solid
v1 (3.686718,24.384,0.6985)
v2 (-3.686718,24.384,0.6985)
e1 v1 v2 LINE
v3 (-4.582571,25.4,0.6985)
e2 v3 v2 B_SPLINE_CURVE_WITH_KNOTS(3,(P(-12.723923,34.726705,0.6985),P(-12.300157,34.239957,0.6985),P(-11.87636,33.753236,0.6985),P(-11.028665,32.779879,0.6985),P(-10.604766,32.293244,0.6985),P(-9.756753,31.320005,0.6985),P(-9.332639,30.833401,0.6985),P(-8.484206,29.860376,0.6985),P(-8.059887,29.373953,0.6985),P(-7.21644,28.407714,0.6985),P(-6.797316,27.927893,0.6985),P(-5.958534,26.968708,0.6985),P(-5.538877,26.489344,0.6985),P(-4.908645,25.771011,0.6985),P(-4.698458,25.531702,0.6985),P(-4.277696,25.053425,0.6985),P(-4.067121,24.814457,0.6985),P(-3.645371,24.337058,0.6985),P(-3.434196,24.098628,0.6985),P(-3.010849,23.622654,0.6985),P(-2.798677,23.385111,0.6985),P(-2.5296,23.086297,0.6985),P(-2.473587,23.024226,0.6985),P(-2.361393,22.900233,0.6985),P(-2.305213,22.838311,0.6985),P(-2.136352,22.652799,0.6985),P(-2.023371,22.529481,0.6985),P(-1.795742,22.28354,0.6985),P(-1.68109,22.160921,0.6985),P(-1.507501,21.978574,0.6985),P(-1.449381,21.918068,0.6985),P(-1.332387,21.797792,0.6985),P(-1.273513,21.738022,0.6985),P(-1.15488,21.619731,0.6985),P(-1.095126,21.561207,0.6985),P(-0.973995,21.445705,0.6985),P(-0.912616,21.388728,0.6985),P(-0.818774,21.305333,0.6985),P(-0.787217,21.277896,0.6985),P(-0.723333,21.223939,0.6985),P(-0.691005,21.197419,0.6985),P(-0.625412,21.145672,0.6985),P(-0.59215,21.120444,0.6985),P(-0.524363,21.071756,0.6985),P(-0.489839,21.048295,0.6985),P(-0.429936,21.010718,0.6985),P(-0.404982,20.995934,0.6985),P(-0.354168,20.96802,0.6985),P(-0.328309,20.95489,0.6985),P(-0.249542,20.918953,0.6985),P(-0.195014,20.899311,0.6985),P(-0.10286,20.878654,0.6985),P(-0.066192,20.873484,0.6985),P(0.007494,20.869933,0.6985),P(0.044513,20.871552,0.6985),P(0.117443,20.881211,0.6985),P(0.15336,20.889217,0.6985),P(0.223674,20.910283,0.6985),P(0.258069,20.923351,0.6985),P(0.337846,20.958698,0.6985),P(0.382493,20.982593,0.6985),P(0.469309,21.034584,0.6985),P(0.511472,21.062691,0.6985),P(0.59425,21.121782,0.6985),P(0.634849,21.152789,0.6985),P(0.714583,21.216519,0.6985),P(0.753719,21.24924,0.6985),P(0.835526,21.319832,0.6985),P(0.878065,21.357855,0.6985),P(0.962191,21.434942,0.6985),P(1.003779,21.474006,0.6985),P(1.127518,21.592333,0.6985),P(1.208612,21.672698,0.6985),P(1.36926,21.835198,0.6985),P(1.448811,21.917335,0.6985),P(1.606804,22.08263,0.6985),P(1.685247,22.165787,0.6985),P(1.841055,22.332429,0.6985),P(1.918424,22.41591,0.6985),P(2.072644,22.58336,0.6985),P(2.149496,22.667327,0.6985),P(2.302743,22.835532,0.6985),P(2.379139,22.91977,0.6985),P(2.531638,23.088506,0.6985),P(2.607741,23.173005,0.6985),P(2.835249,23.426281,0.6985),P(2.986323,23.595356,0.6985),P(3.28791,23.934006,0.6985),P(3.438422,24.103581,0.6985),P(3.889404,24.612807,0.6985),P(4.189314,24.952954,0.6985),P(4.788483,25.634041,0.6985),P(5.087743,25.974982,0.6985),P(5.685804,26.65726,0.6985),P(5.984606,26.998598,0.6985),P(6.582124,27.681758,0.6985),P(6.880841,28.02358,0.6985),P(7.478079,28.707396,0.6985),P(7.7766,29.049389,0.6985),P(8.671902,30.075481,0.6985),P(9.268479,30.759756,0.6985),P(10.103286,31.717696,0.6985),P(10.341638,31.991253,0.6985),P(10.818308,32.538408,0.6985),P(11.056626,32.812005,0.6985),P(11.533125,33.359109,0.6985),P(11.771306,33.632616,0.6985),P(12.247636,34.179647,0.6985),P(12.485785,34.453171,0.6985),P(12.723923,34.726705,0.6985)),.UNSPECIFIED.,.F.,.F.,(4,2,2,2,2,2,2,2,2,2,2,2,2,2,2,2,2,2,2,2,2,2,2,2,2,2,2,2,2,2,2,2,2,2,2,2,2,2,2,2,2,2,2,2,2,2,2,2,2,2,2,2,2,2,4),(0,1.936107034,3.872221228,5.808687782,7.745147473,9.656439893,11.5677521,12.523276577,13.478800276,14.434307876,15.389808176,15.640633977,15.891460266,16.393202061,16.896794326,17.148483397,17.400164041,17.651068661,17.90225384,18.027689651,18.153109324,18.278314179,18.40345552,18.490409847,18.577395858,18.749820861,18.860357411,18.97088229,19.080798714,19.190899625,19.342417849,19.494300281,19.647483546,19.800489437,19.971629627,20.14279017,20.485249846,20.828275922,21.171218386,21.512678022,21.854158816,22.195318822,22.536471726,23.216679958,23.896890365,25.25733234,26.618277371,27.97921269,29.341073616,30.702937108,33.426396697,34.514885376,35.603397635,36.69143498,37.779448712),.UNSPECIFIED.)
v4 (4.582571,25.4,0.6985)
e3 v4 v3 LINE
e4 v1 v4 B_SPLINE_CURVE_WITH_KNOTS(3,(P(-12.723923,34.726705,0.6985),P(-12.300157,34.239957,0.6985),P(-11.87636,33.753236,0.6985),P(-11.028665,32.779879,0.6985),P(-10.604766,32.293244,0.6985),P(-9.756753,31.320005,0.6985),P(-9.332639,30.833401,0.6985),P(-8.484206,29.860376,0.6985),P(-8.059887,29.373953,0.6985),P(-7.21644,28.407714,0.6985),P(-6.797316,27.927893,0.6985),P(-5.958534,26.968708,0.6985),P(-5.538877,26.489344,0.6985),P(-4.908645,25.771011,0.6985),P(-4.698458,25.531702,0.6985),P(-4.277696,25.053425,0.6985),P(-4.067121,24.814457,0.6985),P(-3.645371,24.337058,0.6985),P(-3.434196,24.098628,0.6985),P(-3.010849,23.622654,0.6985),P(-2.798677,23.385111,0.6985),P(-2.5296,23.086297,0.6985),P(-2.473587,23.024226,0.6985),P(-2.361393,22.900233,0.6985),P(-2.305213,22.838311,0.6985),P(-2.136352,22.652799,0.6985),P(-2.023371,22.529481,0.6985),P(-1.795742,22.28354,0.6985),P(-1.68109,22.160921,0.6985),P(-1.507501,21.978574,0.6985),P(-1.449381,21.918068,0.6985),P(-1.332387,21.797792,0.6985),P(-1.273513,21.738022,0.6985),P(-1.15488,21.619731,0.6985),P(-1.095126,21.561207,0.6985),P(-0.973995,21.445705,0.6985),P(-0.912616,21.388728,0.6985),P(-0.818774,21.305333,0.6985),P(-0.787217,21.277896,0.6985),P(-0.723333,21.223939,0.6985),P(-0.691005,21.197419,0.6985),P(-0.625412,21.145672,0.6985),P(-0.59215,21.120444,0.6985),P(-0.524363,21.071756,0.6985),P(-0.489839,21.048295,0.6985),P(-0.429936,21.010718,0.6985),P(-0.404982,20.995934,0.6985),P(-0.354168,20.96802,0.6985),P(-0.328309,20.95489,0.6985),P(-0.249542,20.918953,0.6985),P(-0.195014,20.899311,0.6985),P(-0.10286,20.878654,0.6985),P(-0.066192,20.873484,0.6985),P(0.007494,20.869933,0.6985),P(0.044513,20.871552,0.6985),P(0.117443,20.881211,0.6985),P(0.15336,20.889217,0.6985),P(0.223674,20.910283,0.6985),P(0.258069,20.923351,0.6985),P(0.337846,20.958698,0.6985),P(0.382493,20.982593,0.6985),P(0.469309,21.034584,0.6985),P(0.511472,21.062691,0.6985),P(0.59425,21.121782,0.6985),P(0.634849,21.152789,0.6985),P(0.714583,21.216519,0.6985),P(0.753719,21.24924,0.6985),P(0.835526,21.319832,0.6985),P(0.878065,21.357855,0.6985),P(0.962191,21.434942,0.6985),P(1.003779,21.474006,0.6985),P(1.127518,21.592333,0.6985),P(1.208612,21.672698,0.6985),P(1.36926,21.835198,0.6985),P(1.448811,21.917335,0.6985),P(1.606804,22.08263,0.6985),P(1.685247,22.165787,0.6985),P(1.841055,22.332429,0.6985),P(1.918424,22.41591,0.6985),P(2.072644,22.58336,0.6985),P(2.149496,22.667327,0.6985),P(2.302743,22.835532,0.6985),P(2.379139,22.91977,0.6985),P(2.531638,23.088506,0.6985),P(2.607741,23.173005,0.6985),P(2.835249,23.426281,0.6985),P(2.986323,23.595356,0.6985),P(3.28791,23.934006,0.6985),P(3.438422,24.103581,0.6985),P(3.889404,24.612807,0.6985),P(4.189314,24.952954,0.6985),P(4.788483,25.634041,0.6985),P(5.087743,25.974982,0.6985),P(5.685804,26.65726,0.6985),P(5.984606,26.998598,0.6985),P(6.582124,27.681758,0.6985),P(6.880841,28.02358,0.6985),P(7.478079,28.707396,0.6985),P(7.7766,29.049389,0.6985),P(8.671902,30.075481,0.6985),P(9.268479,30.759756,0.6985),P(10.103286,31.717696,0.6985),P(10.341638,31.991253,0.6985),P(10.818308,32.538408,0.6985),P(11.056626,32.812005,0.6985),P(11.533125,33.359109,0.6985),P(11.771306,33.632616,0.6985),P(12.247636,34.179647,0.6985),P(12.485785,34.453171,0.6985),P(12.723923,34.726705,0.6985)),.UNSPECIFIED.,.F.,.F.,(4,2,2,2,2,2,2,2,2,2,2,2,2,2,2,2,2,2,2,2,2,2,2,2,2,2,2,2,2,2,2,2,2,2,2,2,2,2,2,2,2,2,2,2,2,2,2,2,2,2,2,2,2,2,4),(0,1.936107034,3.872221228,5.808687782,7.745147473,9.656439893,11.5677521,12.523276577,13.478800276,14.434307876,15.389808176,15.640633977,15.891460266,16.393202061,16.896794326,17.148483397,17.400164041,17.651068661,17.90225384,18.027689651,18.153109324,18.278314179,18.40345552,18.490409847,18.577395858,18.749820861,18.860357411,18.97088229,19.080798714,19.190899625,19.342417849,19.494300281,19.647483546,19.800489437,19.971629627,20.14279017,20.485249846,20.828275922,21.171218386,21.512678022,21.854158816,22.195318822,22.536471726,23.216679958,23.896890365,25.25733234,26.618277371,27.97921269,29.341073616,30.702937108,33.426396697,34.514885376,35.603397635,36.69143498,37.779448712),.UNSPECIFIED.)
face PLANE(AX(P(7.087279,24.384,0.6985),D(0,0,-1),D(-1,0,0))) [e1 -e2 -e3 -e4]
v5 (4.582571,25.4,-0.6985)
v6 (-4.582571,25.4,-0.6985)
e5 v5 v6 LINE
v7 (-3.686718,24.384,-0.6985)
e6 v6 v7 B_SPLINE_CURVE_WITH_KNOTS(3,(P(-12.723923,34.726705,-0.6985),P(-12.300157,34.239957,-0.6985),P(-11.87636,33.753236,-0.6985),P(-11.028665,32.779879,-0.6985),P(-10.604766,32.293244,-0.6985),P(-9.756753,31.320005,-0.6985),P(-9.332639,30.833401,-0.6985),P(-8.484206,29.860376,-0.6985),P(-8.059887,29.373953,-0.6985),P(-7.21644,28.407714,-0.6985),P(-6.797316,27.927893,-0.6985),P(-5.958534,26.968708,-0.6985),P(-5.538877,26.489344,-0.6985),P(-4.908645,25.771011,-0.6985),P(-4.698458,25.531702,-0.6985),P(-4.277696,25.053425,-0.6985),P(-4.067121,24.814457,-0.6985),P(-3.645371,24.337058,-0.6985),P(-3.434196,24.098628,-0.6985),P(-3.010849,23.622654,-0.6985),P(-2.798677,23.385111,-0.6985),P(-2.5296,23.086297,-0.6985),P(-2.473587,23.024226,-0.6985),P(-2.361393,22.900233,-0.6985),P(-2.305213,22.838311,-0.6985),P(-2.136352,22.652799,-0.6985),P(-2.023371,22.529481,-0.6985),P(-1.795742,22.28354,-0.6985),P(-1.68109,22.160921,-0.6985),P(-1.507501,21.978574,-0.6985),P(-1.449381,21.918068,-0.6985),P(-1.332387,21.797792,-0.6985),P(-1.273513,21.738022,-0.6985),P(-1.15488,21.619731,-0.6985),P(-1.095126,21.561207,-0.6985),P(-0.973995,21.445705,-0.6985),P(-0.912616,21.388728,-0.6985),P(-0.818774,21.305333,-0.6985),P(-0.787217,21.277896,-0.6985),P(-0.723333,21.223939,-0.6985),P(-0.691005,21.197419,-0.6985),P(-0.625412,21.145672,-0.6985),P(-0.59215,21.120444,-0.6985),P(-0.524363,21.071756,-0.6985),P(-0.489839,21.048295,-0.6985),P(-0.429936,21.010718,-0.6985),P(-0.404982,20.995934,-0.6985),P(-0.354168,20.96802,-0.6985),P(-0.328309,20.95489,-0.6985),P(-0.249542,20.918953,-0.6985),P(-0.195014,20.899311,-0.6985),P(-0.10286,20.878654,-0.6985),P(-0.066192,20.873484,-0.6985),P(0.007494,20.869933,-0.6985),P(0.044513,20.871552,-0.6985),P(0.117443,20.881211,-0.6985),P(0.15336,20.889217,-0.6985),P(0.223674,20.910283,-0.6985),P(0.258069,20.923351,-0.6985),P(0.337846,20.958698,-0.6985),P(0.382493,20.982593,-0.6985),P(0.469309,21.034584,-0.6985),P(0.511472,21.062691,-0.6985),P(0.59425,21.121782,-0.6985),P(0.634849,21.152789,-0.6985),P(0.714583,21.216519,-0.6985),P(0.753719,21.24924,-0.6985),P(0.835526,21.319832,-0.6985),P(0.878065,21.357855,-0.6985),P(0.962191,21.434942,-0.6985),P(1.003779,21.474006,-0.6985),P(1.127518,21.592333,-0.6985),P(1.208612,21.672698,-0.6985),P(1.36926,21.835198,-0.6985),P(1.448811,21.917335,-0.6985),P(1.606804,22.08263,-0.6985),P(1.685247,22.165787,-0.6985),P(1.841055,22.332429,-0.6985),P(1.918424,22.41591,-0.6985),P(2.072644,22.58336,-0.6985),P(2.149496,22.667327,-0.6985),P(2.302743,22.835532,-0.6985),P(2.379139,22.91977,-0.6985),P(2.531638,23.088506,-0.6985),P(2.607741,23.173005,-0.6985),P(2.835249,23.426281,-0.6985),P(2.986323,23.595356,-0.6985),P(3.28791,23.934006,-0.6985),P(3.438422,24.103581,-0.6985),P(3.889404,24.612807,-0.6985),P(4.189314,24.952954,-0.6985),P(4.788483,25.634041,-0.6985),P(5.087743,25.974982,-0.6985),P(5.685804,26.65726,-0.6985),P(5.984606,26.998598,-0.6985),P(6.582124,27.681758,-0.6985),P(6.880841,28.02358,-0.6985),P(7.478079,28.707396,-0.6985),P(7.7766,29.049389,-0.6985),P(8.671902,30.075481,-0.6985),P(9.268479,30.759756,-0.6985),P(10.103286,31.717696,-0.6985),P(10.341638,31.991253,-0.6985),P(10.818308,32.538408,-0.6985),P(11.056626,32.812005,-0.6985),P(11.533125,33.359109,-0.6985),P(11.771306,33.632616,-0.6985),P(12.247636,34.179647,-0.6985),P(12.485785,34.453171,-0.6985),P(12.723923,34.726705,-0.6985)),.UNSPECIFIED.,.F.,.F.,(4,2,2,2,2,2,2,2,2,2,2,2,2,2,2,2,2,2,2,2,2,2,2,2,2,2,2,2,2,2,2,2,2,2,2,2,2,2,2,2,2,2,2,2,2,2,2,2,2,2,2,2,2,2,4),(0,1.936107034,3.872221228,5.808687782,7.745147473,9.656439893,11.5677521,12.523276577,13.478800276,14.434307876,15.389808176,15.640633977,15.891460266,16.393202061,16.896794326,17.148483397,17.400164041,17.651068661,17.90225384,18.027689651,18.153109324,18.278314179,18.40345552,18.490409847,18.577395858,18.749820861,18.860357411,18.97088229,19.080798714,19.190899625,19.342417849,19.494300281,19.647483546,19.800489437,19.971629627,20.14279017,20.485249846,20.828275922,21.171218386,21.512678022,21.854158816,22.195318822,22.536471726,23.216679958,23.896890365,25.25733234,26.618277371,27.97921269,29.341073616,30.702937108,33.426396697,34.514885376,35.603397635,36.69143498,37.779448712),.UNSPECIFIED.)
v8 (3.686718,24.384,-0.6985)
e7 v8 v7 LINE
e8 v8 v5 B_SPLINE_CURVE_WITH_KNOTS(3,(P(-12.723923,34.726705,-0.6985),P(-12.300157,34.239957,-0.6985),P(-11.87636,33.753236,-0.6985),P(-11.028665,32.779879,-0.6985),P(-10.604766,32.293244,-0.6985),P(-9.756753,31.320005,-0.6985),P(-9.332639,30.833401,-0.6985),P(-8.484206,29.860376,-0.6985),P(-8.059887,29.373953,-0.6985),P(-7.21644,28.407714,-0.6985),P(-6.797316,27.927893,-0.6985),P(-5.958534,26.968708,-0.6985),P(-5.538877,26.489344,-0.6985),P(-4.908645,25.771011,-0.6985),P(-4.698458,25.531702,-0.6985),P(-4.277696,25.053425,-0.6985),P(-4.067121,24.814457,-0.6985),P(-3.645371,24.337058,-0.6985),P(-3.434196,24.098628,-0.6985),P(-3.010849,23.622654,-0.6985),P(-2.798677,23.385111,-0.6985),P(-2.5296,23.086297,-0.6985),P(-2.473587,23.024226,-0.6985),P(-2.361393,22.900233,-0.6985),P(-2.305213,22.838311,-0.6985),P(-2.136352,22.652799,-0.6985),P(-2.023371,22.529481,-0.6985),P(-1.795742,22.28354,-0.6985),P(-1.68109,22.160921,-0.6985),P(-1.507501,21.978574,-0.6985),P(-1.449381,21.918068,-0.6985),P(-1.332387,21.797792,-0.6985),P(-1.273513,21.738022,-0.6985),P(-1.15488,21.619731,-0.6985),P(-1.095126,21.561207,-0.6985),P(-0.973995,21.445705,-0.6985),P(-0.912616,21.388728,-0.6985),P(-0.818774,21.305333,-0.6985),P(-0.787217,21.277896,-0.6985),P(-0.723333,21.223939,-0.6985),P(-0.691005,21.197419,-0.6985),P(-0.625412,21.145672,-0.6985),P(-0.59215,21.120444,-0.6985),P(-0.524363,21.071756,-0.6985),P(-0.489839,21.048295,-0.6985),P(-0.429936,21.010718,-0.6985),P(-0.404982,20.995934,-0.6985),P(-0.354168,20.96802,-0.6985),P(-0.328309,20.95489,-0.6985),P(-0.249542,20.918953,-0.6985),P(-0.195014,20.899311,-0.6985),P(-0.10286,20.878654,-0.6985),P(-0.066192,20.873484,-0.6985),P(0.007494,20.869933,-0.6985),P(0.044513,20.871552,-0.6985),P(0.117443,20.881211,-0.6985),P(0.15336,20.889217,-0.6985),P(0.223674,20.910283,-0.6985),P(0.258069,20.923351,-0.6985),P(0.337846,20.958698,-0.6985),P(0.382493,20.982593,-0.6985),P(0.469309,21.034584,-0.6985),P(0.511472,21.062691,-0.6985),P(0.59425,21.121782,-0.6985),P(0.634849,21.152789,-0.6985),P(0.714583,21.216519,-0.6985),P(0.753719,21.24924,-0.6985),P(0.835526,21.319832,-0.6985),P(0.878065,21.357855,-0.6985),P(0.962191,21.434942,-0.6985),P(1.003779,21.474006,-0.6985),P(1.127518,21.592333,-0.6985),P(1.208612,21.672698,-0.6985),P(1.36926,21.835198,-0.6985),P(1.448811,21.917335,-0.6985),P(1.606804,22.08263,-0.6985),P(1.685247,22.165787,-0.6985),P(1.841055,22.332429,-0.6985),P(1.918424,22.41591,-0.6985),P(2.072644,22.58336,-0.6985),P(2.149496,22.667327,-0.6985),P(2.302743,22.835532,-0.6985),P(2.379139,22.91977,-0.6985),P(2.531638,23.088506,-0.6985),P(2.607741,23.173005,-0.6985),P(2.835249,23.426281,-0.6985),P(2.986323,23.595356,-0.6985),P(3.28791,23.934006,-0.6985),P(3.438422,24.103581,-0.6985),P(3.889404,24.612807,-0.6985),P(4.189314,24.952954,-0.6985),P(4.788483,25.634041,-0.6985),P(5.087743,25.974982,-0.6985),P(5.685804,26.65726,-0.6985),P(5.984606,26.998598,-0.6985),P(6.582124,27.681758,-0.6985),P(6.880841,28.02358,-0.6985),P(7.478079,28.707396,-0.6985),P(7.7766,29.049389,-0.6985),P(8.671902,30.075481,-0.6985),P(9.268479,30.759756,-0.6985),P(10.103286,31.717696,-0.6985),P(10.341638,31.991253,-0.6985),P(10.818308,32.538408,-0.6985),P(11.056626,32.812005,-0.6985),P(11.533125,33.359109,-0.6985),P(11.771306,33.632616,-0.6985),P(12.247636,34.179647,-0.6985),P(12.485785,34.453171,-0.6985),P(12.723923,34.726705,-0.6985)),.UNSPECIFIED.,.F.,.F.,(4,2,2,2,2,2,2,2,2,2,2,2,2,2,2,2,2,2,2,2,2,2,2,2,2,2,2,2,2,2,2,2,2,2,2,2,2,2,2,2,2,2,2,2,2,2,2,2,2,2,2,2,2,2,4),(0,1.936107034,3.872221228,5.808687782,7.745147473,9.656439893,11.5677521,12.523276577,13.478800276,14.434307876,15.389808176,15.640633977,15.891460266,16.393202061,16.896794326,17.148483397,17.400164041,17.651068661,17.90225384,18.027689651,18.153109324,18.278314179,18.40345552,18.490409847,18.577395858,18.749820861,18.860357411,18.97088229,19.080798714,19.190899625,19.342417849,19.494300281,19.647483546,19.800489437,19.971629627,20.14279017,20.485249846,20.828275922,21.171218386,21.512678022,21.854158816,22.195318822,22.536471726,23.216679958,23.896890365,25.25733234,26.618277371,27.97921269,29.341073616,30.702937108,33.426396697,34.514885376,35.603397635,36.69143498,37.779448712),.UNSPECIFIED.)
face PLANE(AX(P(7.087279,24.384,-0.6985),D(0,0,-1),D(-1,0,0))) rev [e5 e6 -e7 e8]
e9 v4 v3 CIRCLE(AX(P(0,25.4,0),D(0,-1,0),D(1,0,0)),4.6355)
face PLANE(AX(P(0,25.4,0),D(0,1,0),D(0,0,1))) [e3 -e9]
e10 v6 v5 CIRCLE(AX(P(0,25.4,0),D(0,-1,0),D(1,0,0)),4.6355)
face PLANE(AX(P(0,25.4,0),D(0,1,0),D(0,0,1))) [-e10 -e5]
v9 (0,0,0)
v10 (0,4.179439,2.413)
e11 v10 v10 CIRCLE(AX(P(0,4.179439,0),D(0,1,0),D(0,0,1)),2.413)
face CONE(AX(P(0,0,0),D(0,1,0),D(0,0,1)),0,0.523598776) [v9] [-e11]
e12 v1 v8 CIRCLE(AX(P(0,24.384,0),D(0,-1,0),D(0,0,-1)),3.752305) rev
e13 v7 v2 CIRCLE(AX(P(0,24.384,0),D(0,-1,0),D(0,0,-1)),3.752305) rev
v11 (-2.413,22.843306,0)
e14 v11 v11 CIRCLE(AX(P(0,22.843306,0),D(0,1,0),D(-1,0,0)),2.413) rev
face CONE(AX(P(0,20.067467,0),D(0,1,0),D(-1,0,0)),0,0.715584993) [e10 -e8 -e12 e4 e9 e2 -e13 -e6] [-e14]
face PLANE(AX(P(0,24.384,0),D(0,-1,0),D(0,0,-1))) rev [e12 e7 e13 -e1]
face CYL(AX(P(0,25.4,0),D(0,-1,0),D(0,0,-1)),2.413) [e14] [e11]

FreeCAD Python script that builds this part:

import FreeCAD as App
import Part
import Sketcher
from FreeCAD import Vector
Q = App.Units.Quantity


def add_polygon(sketch, points):
    """Adds a closed chain of lines whose ends are joined by coincident constraints."""
    first, n = sketch.GeometryCount, len(points)
    for a, b in zip(points, points[1:] + points[:1]):
        sketch.addGeometry(Part.LineSegment(App.Vector(*a, 0), App.Vector(*b, 0)), False)
    for i in range(n):
        sketch.addConstraint(Sketcher.Constraint("Coincident", first + i, 2, first + (i + 1) % n, 1))

doc = App.newDocument("Part")
params = doc.addObject("Spreadsheet::Sheet", "Params")
for row, (alias, value) in enumerate([
    ("sketch1_diameter", "0.19 in"),
    ("pad1_length", "1 in"),
    ("revolution_angle", "360 deg"),
    ("sketch3_length", "0.19 in"),
    ("sketch3_height", "0.025 in"),
    ("groove_angle", "360 deg"),
    ("sketch4_height", "0.055 in"),
    ("pocket1_length", "0.04 in"),
], start=1):
    params.set(f"A{row}", alias)
    params.set(f"B{row}", "=" + value)
    params.setAlias(f"B{row}", alias)

body = doc.addObject("PartDesign::Body", "Body")

# Sketch on XZ plane
sketch1 = body.newObject("Sketcher::SketchObject", "Sketch")
sketch1.AttachmentSupport = (doc.getObject("XZ_Plane"), [""])
sketch1.MapMode = "FlatFace"
sketch1.addGeometry(Part.Circle(Vector(0, 0, 0), Vector(0, 0, 1), 2.4), False)
sketch1.addConstraint(Sketcher.Constraint("Coincident", 0, 3, -1, 1))
sketch1.addConstraint(Sketcher.Constraint("Diameter", 0, Q("0.19 in")))
sketch1.setExpression("Constraints[1]", "Params.sketch1_diameter")
pad1 = body.newObject("PartDesign::Pad", "Pad")
pad1.Profile = sketch1
pad1.setExpression("Length", "Params.pad1_length")
pad1.Reversed = True

# Sketch on XY plane
sketch2 = body.newObject("Sketcher::SketchObject", "Sketch001")
sketch2.AttachmentSupport = (doc.getObject("XY_Plane"), [""])
sketch2.MapMode = "FlatFace"
add_polygon(sketch2, [(4.6, 25.4), (0, 25.4), (0, 20.1)])  # lines 0-2
sketch2.addConstraint(Sketcher.Constraint("Horizontal", 0))
sketch2.addConstraint(Sketcher.Constraint("Vertical", 1))
sketch2.addConstraint(Sketcher.Constraint("PointOnObject", 0, 2, -2))
sketch2.addConstraint(Sketcher.Constraint("DistanceY", -1, 1, 0, 2, Q("1 in")))
sketch2.addConstraint(Sketcher.Constraint("Angle", 2, Q("49 deg")))
sketch2.addConstraint(Sketcher.Constraint("DistanceX", 0, 2, 0, 1, Q("0.1825 in")))
revolution = body.newObject("PartDesign::Revolution", "Revolution")
revolution.Profile = sketch2
revolution.ReferenceAxis = (sketch2, ["V_Axis"])
revolution.setExpression("Angle", "Params.revolution_angle")

# Sketch on XY plane
sketch3 = body.newObject("Sketcher::SketchObject", "Sketch002")
sketch3.AttachmentSupport = (doc.getObject("XY_Plane"), [""])
sketch3.MapMode = "FlatFace"
add_polygon(sketch3, [(2.4, 4.2), (0, 0), (0, -0.6), (2.4, -0.6)])  # lines 0-3
sketch3.addConstraint(Sketcher.Constraint("Vertical", 1))
sketch3.addConstraint(Sketcher.Constraint("Horizontal", 2))
sketch3.addConstraint(Sketcher.Constraint("Vertical", 3))
sketch3.addConstraint(Sketcher.Constraint("Coincident", 0, 2, -1, 1))
sketch3.addConstraint(Sketcher.Constraint("Angle", 0, Q("-120 deg")))
sketch3.addConstraint(Sketcher.Constraint("Distance", 0, Q("0.19 in")))
sketch3.addConstraint(Sketcher.Constraint("DistanceY", 1, 2, 1, 1, Q("0.025 in")))
sketch3.setExpression("Constraints[9]", "Params.sketch3_length")
sketch3.setExpression("Constraints[10]", "Params.sketch3_height")
groove = body.newObject("PartDesign::Groove", "Groove")
groove.Profile = sketch3
groove.ReferenceAxis = (sketch3, ["V_Axis"])
groove.setExpression("Angle", "Params.groove_angle")

# Sketch on XZ plane
sketch4 = body.newObject("Sketcher::SketchObject", "Sketch003")
sketch4.AttachmentSupport = (doc.getObject("XZ_Plane"), [""])
sketch4.MapMode = "FlatFace"
sketch4.AttachmentOffset = App.Placement(Vector(0, 0, -1 * 25.4), App.Rotation())
add_polygon(sketch4, [(-7.1, -0.7), (-7.1, 0.7), (7.1, 0.7), (7.1, -0.7)])  # lines 0-3
sketch4.addConstraint(Sketcher.Constraint("Vertical", 0))
sketch4.addConstraint(Sketcher.Constraint("Horizontal", 1))
sketch4.addConstraint(Sketcher.Constraint("Vertical", 2))
sketch4.addConstraint(Sketcher.Constraint("Horizontal", 3))
sketch4.addConstraint(Sketcher.Constraint("Symmetric", 0, 2, 2, 2, -1, 1))
sketch4.addConstraint(Sketcher.Constraint("DistanceY", 0, 1, 0, 2, Q("0.055 in")))
sketch4.addConstraint(Sketcher.Constraint("DistanceX", 1, 1, 1, 2, 14.174558))
sketch4.setExpression("Constraints[9]", "Params.sketch4_height")
pocket1 = body.newObject("PartDesign::Pocket", "Pocket")
pocket1.Profile = sketch4
pocket1.setExpression("Length", "Params.pocket1_length")
pocket1.Reversed = True

doc.recompute()
